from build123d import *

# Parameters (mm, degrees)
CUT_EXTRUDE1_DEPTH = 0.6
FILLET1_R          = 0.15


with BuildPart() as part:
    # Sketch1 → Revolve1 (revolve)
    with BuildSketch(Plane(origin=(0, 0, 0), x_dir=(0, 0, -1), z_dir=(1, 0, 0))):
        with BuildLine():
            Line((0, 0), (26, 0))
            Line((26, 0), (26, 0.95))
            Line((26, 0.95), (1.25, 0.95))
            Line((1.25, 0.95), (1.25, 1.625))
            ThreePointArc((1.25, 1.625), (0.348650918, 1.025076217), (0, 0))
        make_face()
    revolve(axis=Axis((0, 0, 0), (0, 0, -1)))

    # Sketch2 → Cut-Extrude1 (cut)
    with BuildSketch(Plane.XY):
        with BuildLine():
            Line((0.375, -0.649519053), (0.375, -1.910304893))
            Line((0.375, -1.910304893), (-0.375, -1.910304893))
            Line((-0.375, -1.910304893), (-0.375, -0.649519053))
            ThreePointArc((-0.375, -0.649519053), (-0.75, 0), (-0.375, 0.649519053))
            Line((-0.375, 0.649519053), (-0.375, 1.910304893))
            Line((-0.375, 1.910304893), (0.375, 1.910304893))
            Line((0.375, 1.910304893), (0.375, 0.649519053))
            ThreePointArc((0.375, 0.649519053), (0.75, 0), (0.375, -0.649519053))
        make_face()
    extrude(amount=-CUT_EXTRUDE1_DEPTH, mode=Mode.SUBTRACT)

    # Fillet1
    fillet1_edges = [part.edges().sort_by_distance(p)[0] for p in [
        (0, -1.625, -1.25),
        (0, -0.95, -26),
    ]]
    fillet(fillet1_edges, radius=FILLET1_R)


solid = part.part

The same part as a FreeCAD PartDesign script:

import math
import FreeCAD as App
import Part
import Sketcher
from FreeCAD import Vector


def edges_at(feature, points):
    """Names of the edges that pass closest to the given points."""
    edges = feature.Shape.Edges
    near = lambda p: min(range(len(edges)), key=lambda i: edges[i].distToShape(Part.Vertex(*p))[0])
    return sorted({f"Edge{near(p) + 1}" for p in points})

doc = App.newDocument("Part")
body = doc.addObject("PartDesign::Body", "Body")

# Sketch on YZ plane
sketch1 = body.newObject("Sketcher::SketchObject", "Sketch")
sketch1.AttachmentSupport = (doc.getObject("YZ_Plane"), [""])
sketch1.MapMode = "FlatFace"
sketch1.addGeometry([
    Part.LineSegment(Vector(0, 0, 0), Vector(0, -26, 0)),  # 0
    Part.LineSegment(Vector(0, -26, 0), Vector(0.9, -26, 0)),  # 1
    Part.LineSegment(Vector(0.9, -26, 0), Vector(0.9, -1.2, 0)),  # 2
    Part.LineSegment(Vector(0.9, -1.2, 0), Vector(1.6, -1.2, 0)),  # 3
    Part.ArcOfCircle(Part.Circle(Vector(0, -1.7, 0), Vector(0, 0, 1), 1.7), math.radians(15), math.radians(90)),  # 4
], False)
sketch1.addConstraint([
    Sketcher.Constraint("Coincident", 0, 2, 1, 1),
    Sketcher.Constraint("Coincident", 1, 2, 2, 1),
    Sketcher.Constraint("Coincident", 2, 2, 3, 1),
    Sketcher.Constraint("Coincident", 3, 2, 4, 1),
    Sketcher.Constraint("Coincident", 4, 2, 0, 1),
    Sketcher.Constraint("Vertical", 0),
    Sketcher.Constraint("Horizontal", 1),
    Sketcher.Constraint("Vertical", 2),
    Sketcher.Constraint("Horizontal", 3),
    Sketcher.Constraint("Coincident", 4, 2, -1, 1),
    Sketcher.Constraint("PointOnObject", 4, 3, -2),
    Sketcher.Constraint("DistanceY", 0, 2, 0, 1, 26.0),
    Sketcher.Constraint("DistanceX", 1, 1, 1, 2, 0.95),
    Sketcher.Constraint("DistanceY", 2, 1, 2, 2, 24.75),
    Sketcher.Constraint("DistanceX", 3, 1, 3, 2, 0.675),
])
revolution = body.newObject("PartDesign::Revolution", "Revolution")
revolution.Profile = sketch1
revolution.ReferenceAxis = (sketch1, ["V_Axis"])
revolution.Angle = 360

# Sketch on XY plane
sketch2 = body.newObject("Sketcher::SketchObject", "Sketch001")
sketch2.AttachmentSupport = (doc.getObject("XY_Plane"), [""])
sketch2.MapMode = "FlatFace"
sketch2.addGeometry([
    Part.LineSegment(Vector(0.4, -1.9, 0), Vector(0.4, -0.6, 0)),  # 0
    Part.ArcOfCircle(Part.Circle(Vector(0, 0, 0), Vector(0, 0, 1), 0.8), math.radians(-60), math.radians(60)),  # 1
    Part.LineSegment(Vector(0.4, 0.6, 0), Vector(0.4, 1.9, 0)),  # 2
    Part.LineSegment(Vector(0.4, 1.9, 0), Vector(-0.4, 1.9, 0)),  # 3
    Part.LineSegment(Vector(-0.4, 1.9, 0), Vector(-0.4, 0.6, 0)),  # 4
    Part.ArcOfCircle(Part.Circle(Vector(0, 0, 0), Vector(0, 0, 1), 0.8), math.radians(120), math.radians(240)),  # 5
    Part.LineSegment(Vector(-0.4, -0.6, 0), Vector(-0.4, -1.9, 0)),  # 6
    Part.LineSegment(Vector(-0.4, -1.9, 0), Vector(0.4, -1.9, 0)),  # 7
], False)
sketch2.addConstraint([
    Sketcher.Constraint("Coincident", 0, 2, 1, 1),
    Sketcher.Constraint("Coincident", 1, 2, 2, 1),
    Sketcher.Constraint("Coincident", 2, 2, 3, 1),
    Sketcher.Constraint("Coincident", 3, 2, 4, 1),
    Sketcher.Constraint("Coincident", 4, 2, 5, 1),
    Sketcher.Constraint("Coincident", 5, 2, 6, 1),
    Sketcher.Constraint("Coincident", 6, 2, 7, 1),
    Sketcher.Constraint("Coincident", 7, 2, 0, 1),
    Sketcher.Constraint("Vertical", 0),
    Sketcher.Constraint("Vertical", 2),
    Sketcher.Constraint("Horizontal", 3),
    Sketcher.Constraint("Vertical", 4),
    Sketcher.Constraint("Vertical", 6),
    Sketcher.Constraint("Horizontal", 7),
    Sketcher.Constraint("Coincident", 1, 3, -1, 1),
    Sketcher.Constraint("Coincident", 5, 3, -1, 1),
    Sketcher.Constraint("Equal", 1, 5),
    Sketcher.Constraint("Symmetric", 2, 2, 6, 2, -1, 1),
    Sketcher.Constraint("Horizontal", 1, 2, 4, 2),
    Sketcher.Constraint("Horizontal", 0, 2, 5, 2),
    Sketcher.Constraint("Radius", 1, 0.75),
    Sketcher.Constraint("DistanceX", 3, 2, 3, 1, 0.75),
    Sketcher.Constraint("DistanceY", 0, 1, 0, 2, 1.260786),
])
pocket1 = body.newObject("PartDesign::Pocket", "Pocket")
pocket1.Profile = sketch2
pocket1.Length = 0.6
doc.recompute()

fillet = body.newObject("PartDesign::Fillet", "Fillet")
fillet.Base = (pocket1, edges_at(pocket1, [(0, -1.625, -1.25), (0, -0.95, -26)]))
fillet.Radius = 0.15

doc.recompute()
